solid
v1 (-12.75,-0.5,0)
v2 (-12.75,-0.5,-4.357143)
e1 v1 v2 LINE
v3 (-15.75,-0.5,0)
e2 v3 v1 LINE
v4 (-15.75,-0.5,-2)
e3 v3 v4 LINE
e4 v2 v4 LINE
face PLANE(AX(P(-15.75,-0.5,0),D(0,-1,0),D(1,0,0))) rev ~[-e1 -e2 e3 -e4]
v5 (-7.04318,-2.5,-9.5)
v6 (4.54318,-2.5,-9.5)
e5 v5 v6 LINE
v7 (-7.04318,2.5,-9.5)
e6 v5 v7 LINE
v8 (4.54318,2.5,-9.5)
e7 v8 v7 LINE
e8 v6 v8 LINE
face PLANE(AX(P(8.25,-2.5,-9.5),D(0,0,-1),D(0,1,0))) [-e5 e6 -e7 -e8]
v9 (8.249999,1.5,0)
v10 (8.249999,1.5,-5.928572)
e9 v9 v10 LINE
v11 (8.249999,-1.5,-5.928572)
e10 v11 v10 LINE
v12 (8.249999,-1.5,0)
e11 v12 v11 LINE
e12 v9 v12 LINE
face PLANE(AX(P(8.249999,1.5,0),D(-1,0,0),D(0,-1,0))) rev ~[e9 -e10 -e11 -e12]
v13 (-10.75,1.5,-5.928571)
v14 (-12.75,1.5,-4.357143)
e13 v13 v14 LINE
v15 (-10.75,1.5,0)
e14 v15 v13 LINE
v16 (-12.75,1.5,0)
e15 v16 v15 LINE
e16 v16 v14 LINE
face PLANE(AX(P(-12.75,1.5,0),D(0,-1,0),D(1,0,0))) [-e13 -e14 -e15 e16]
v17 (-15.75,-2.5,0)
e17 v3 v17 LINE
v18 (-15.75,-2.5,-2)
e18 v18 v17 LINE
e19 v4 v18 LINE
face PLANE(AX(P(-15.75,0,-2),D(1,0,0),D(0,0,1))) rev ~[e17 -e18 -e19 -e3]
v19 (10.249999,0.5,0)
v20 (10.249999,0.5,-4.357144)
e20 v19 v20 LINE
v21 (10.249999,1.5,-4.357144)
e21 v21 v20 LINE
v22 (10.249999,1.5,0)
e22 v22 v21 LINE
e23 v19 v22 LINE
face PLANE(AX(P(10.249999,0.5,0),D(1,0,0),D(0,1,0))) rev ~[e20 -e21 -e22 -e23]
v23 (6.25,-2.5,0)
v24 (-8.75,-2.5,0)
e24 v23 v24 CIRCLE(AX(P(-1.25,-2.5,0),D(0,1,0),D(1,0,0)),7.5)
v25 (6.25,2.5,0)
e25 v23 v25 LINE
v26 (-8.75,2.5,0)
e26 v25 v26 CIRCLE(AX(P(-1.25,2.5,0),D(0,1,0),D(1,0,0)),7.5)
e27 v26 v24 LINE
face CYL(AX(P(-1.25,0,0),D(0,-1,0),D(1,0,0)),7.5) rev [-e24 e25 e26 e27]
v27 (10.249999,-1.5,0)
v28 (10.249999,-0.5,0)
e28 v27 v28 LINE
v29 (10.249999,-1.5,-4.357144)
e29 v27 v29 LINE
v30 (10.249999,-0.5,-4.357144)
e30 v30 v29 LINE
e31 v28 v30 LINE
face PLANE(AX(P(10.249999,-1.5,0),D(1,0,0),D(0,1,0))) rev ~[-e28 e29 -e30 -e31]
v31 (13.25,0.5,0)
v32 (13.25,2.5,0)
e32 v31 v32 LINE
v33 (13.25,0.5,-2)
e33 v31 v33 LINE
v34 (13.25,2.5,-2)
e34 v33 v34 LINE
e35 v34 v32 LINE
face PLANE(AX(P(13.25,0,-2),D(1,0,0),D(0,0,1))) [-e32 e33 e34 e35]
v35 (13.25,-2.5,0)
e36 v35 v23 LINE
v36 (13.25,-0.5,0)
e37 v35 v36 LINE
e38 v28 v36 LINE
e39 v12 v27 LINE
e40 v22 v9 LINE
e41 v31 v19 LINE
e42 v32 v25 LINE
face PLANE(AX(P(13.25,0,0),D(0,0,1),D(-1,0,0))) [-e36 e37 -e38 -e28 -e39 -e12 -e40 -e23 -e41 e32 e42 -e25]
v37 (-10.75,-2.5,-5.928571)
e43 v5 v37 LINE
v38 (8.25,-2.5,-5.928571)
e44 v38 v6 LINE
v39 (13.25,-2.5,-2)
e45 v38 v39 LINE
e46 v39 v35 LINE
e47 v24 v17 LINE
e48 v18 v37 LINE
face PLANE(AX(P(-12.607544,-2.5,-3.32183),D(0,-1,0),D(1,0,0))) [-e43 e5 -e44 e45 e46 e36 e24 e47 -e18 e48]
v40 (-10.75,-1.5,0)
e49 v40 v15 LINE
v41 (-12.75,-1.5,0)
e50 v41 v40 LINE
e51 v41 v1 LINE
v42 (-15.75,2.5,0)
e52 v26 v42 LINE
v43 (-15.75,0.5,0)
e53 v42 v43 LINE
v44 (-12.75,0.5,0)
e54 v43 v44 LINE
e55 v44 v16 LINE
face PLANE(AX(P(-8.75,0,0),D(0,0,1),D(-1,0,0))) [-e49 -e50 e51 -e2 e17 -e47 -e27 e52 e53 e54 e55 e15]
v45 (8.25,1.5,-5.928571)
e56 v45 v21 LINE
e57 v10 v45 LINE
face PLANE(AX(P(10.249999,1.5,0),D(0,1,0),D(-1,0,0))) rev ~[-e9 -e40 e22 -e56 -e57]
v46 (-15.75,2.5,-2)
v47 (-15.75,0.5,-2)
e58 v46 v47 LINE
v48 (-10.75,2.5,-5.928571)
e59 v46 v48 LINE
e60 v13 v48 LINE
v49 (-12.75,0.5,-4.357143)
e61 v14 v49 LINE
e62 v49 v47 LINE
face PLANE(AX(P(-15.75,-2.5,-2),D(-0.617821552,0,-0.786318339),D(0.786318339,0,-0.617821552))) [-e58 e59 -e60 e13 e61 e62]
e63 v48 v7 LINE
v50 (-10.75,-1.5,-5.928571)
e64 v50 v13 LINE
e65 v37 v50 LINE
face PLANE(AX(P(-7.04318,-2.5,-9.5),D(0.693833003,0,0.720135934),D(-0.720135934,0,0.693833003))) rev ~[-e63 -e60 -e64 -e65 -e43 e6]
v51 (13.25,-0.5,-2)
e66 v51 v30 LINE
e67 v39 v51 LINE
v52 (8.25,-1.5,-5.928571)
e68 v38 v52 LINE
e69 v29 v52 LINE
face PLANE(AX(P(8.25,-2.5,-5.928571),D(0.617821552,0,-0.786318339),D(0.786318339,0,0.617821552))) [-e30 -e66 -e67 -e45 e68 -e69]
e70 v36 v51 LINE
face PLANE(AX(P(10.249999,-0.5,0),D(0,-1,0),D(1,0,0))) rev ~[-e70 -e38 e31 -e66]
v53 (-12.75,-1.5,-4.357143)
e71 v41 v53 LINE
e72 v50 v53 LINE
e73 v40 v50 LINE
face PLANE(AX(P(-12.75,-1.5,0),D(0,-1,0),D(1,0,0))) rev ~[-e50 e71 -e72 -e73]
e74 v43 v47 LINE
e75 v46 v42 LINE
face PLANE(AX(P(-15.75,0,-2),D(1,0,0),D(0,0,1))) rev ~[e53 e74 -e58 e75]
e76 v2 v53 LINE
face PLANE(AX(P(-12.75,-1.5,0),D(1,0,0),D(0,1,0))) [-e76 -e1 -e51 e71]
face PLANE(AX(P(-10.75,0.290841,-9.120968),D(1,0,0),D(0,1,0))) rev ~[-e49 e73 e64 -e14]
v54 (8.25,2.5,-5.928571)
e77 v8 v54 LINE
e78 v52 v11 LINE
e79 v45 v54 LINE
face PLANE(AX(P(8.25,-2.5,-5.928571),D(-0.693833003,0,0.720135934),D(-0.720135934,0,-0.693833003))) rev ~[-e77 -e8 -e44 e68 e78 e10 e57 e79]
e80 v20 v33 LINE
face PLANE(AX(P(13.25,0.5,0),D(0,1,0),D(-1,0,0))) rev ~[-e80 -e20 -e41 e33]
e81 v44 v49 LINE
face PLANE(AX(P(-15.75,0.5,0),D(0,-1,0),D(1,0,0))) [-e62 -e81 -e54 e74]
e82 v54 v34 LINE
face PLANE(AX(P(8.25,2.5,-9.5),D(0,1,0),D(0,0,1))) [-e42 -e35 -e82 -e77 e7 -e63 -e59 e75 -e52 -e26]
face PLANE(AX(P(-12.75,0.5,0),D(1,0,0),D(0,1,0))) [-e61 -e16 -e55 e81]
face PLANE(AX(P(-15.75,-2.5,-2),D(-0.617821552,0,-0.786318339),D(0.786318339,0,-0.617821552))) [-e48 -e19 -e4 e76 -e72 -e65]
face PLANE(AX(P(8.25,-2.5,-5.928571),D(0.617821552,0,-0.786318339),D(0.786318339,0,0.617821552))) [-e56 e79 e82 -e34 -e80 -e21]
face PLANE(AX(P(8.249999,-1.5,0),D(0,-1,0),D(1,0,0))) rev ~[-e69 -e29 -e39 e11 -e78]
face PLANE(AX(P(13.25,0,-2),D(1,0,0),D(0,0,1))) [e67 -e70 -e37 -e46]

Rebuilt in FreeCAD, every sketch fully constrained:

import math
import FreeCAD as App
import Part
import Sketcher
Q = App.Units.Quantity


def add_polygon(sketch, points):
    """Adds a closed chain of lines whose ends are joined by coincident constraints."""
    first, n = sketch.GeometryCount, len(points)
    for a, b in zip(points, points[1:] + points[:1]):
        sketch.addGeometry(Part.LineSegment(App.Vector(*a, 0), App.Vector(*b, 0)), False)
    for i in range(n):
        sketch.addConstraint(Sketcher.Constraint("Coincident", first + i, 2, first + (i + 1) % n, 1))

doc = App.newDocument("Part")
body = doc.addObject("PartDesign::Body", "Body")

# Sketch on XZ plane
sketch1 = body.newObject("Sketcher::SketchObject", "Sketch")
sketch1.AttachmentSupport = (doc.getObject("XZ_Plane"), [""])
sketch1.MapMode = "FlatFace"
sketch1.addGeometry(Part.ArcOfCircle(Part.Circle(App.Vector(-1.2, 0, 0), App.Vector(0, 0, 1), 7.5), math.radians(180), math.radians(360)), False)
sketch1.addGeometry(Part.LineSegment(App.Vector(-8.8, 0, 0), App.Vector(-15.8, 0, 0)), False)
sketch1.addGeometry(Part.LineSegment(App.Vector(-15.8, 0, 0), App.Vector(-15.8, -2, 0)), False)
sketch1.addGeometry(Part.LineSegment(App.Vector(-15.8, -2, 0), App.Vector(-10.8, -2, 0)), False)
sketch1.addGeometry(Part.LineSegment(App.Vector(-10.8, -2, 0), App.Vector(-10.8, -9.5, 0)), False)
sketch1.addGeometry(Part.LineSegment(App.Vector(-10.8, -9.5, 0), App.Vector(8.2, -9.5, 0)), False)
sketch1.addGeometry(Part.LineSegment(App.Vector(8.2, -9.5, 0), App.Vector(8.2, -2, 0)), False)
sketch1.addGeometry(Part.LineSegment(App.Vector(8.2, -2, 0), App.Vector(13.2, -2, 0)), False)
sketch1.addGeometry(Part.LineSegment(App.Vector(13.2, -2, 0), App.Vector(13.2, 0, 0)), False)
sketch1.addGeometry(Part.LineSegment(App.Vector(13.2, 0, 0), App.Vector(6.2, 0, 0)), False)
sketch1.addConstraint(Sketcher.Constraint("Coincident", 0, 1, 1, 1))
sketch1.addConstraint(Sketcher.Constraint("Coincident", 1, 2, 2, 1))
sketch1.addConstraint(Sketcher.Constraint("Coincident", 2, 2, 3, 1))
sketch1.addConstraint(Sketcher.Constraint("Coincident", 3, 2, 4, 1))
sketch1.addConstraint(Sketcher.Constraint("Coincident", 4, 2, 5, 1))
sketch1.addConstraint(Sketcher.Constraint("Coincident", 5, 2, 6, 1))
sketch1.addConstraint(Sketcher.Constraint("Coincident", 6, 2, 7, 1))
sketch1.addConstraint(Sketcher.Constraint("Coincident", 7, 2, 8, 1))
sketch1.addConstraint(Sketcher.Constraint("Coincident", 8, 2, 9, 1))
sketch1.addConstraint(Sketcher.Constraint("Coincident", 9, 2, 0, 2))
sketch1.addConstraint(Sketcher.Constraint("Horizontal", 1))
sketch1.addConstraint(Sketcher.Constraint("Vertical", 2))
sketch1.addConstraint(Sketcher.Constraint("Horizontal", 3))
sketch1.addConstraint(Sketcher.Constraint("Vertical", 4))
sketch1.addConstraint(Sketcher.Constraint("Horizontal", 5))
sketch1.addConstraint(Sketcher.Constraint("Vertical", 6))
sketch1.addConstraint(Sketcher.Constraint("Horizontal", 7))
sketch1.addConstraint(Sketcher.Constraint("Vertical", 8))
sketch1.addConstraint(Sketcher.Constraint("Horizontal", 9))
sketch1.addConstraint(Sketcher.Constraint("PointOnObject", 0, 3, -1))
sketch1.addConstraint(Sketcher.Constraint("PointOnObject", 0, 1, -1))
sketch1.addConstraint(Sketcher.Constraint("PointOnObject", 8, 2, -1))
sketch1.addConstraint(Sketcher.Constraint("Horizontal", 3, 2, 6, 2))
sketch1.addConstraint(Sketcher.Constraint("Equal", 3, 7))
sketch1.addConstraint(Sketcher.Constraint("Equal", 1, 9))
sketch1.addConstraint(Sketcher.Constraint("Radius", 0, Q("7.5 mm")))
sketch1.addConstraint(Sketcher.Constraint("DistanceX", 1, 2, 1, 1, Q("7 mm")))
sketch1.addConstraint(Sketcher.Constraint("DistanceX", 3, 1, 3, 2, Q("5 mm")))
sketch1.addConstraint(Sketcher.Constraint("DistanceY", 2, 2, 2, 1, Q("2 mm")))
sketch1.addConstraint(Sketcher.Constraint("DistanceY", 4, 2, 4, 1, Q("7.5 mm")))
sketch1.addConstraint(Sketcher.Constraint("DistanceX", 0, 3, -1, 1, Q("1.25 mm")))
pad1 = body.newObject("PartDesign::Pad", "Pad")
pad1.Profile = sketch1
pad1.Length = 5
pad1.Midplane = True

# Sketch on XZ plane
sketch2 = body.newObject("Sketcher::SketchObject", "Sketch001")
sketch2.AttachmentSupport = (doc.getObject("XZ_Plane"), [""])
sketch2.MapMode = "FlatFace"
sketch2.AttachmentOffset = App.Placement(App.Vector(0, 0, 2.5), App.Rotation())
add_polygon(sketch2, [(-10.8, -2), (-15.8, -2), (-10.8, -5.9)])  # lines 0-2
add_polygon(sketch2, [(8.2, -5.9), (13.2, -2), (8.2, -2)])  # lines 3-5
sketch2.addConstraint(Sketcher.Constraint("Horizontal", 0))
sketch2.addConstraint(Sketcher.Constraint("Vertical", 2))
sketch2.addConstraint(Sketcher.Constraint("Horizontal", 4))
sketch2.addConstraint(Sketcher.Constraint("Vertical", 5))
sketch2.addConstraint(Sketcher.Constraint("Horizontal", 2, 2, 3, 2))
sketch2.addConstraint(Sketcher.Constraint("Horizontal", 1, 2, 5, 2))
sketch2.addConstraint(Sketcher.Constraint("Equal", 0, 4))
sketch2.addConstraint(Sketcher.Constraint("DistanceX", 0, 2, 0, 1, Q("5 mm")))
sketch2.addConstraint(Sketcher.Constraint("DistanceY", 0, 2, -1, 1, Q("2 mm")))
sketch2.addConstraint(Sketcher.Constraint("DistanceX", 2, 2, 3, 2, Q("24 mm")))
sketch2.addConstraint(Sketcher.Constraint("DistanceX", 0, 2, -1, 1, Q("15.75 mm")))
sketch2.addConstraint(Sketcher.Constraint("DistanceY", 2, 1, 2, 2, Q("3.928571 mm")))
pad2 = body.newObject("PartDesign::Pad", "Pad001")
pad2.Profile = sketch2
pad2.Length = 5
pad2.Reversed = True

# Sketch on XY plane
sketch3 = body.newObject("Sketcher::SketchObject", "Sketch002")
sketch3.AttachmentSupport = (doc.getObject("XY_Plane"), [""])
sketch3.MapMode = "FlatFace"
add_polygon(sketch3, [(-15.8, 0.5), (-15.8, -0.5), (-12.8, -0.5), (-12.8, -1.5), (-10.8, -1.5), (-10.8, 1.5), (-12.8, 1.5), (-12.8, 0.5)])  # lines 0-7
add_polygon(sketch3, [(13.2, -0.5), (13.2, 0.5), (10.2, 0.5), (10.2, 1.5), (8.2, 1.5), (8.2, -1.5), (10.2, -1.5), (10.2, -0.5)])  # lines 8-15
sketch3.addConstraint(Sketcher.Constraint("Vertical", 0))
sketch3.addConstraint(Sketcher.Constraint("Horizontal", 1))
sketch3.addConstraint(Sketcher.Constraint("Vertical", 2))
sketch3.addConstraint(Sketcher.Constraint("Horizontal", 3))
sketch3.addConstraint(Sketcher.Constraint("Vertical", 4))
sketch3.addConstraint(Sketcher.Constraint("Horizontal", 5))
sketch3.addConstraint(Sketcher.Constraint("Vertical", 6))
sketch3.addConstraint(Sketcher.Constraint("Horizontal", 7))
sketch3.addConstraint(Sketcher.Constraint("Vertical", 8))
sketch3.addConstraint(Sketcher.Constraint("Horizontal", 9))
sketch3.addConstraint(Sketcher.Constraint("Vertical", 10))
sketch3.addConstraint(Sketcher.Constraint("Horizontal", 11))
sketch3.addConstraint(Sketcher.Constraint("Vertical", 12))
sketch3.addConstraint(Sketcher.Constraint("Horizontal", 13))
sketch3.addConstraint(Sketcher.Constraint("Vertical", 14))
sketch3.addConstraint(Sketcher.Constraint("Horizontal", 15))
sketch3.addConstraint(Sketcher.Constraint("Symmetric", 2, 2, 5, 2, -1))
sketch3.addConstraint(Sketcher.Constraint("Symmetric", 10, 2, 13, 2, -1))
sketch3.addConstraint(Sketcher.Constraint("Horizontal", 7, 2, 8, 2))
sketch3.addConstraint(Sketcher.Constraint("Horizontal", 5, 2, 10, 2))
sketch3.addConstraint(Sketcher.Constraint("Horizontal", 1, 2, 14, 2))
sketch3.addConstraint(Sketcher.Constraint("Equal", 7, 9))
sketch3.addConstraint(Sketcher.Constraint("Equal", 5, 11))
sketch3.addConstraint(Sketcher.Constraint("Equal", 0, 2))
sketch3.addConstraint(Sketcher.Constraint("Equal", 15, 4))
sketch3.addConstraint(Sketcher.Constraint("Equal", 2, 6))
sketch3.addConstraint(Sketcher.Constraint("DistanceX", 1, 1, 1, 2, Q("3 mm")))
sketch3.addConstraint(Sketcher.Constraint("DistanceX", 3, 1, 3, 2, Q("2 mm")))
sketch3.addConstraint(Sketcher.Constraint("DistanceX", 4, 2, 8, 2, Q("24 mm")))
sketch3.addConstraint(Sketcher.Constraint("DistanceX", 0, 2, -1, 1, Q("15.75 mm")))
pocket1 = body.newObject("PartDesign::Pocket", "Pocket")
pocket1.Profile = sketch3
pocket1.Length = 25

# Sketch on YZ plane
sketch4 = body.newObject("Sketcher::SketchObject", "Sketch003")
sketch4.AttachmentSupport = (doc.getObject("YZ_Plane"), [""])
sketch4.MapMode = "FlatFace"
sketch4.AttachmentOffset = App.Placement(App.Vector(0, 0, 8.25), App.Rotation())
add_polygon(sketch4, [(2.5, -9.5), (2.5, -8.2), (-2.5, -9.5)])  # lines 0-2
sketch4.addConstraint(Sketcher.Constraint("Vertical", 0))
sketch4.addConstraint(Sketcher.Constraint("Horizontal", 2))
sketch4.addConstraint(Sketcher.Constraint("DistanceX", 2, 1, 2, 2, Q("5 mm")))
sketch4.addConstraint(Sketcher.Constraint("Angle", 1, Q("-165 deg")))
sketch4.addConstraint(Sketcher.Constraint("DistanceX", -1, 1, 0, 2, Q("2.5 mm")))
sketch4.addConstraint(Sketcher.Constraint("DistanceY", 1, 2, -1, 1, Q("9.5 mm")))
pocket2 = body.newObject("PartDesign::Pocket", "Pocket001")
pocket2.Profile = sketch4
pocket2.Length = 25

# Sketch on YZ plane
sketch5 = body.newObject("Sketcher::SketchObject", "Sketch004")
sketch5.AttachmentSupport = (doc.getObject("YZ_Plane"), [""])
sketch5.MapMode = "FlatFace"
sketch5.AttachmentOffset = App.Placement(App.Vector(0, 0, 8.25), App.Rotation())
add_polygon(sketch5, [(2.5, -9.5), (2.5, -8.2), (-2.5, -9.5)])  # lines 0-2
sketch5.addConstraint(Sketcher.Constraint("Vertical", 0))
sketch5.addConstraint(Sketcher.Constraint("Horizontal", 2))
sketch5.addConstraint(Sketcher.Constraint("DistanceX", 2, 1, 2, 2, Q("5 mm")))
sketch5.addConstraint(Sketcher.Constraint("Angle", 1, Q("-165 deg")))
sketch5.addConstraint(Sketcher.Constraint("DistanceX", -1, 1, 0, 2, Q("2.5 mm")))
sketch5.addConstraint(Sketcher.Constraint("DistanceY", 1, 2, -1, 1, Q("9.5 mm")))
pad3 = body.newObject("PartDesign::Pad", "Pad002")
pad3.Profile = sketch5
pad3.Length = 19
pad3.Reversed = True

# Sketch on XZ plane
sketch6 = body.newObject("Sketcher::SketchObject", "Sketch005")
sketch6.AttachmentSupport = (doc.getObject("XZ_Plane"), [""])
sketch6.MapMode = "FlatFace"
sketch6.AttachmentOffset = App.Placement(App.Vector(0, 0, 2.5), App.Rotation())
add_polygon(sketch6, [(-10.8, -9.5), (-7, -9.5), (-10.8, -5.9)])  # lines 0-2
add_polygon(sketch6, [(8.2, -5.9), (4.5, -9.5), (8.2, -9.5)])  # lines 3-5
sketch6.addConstraint(Sketcher.Constraint("Horizontal", 0))
sketch6.addConstraint(Sketcher.Constraint("Vertical", 2))
sketch6.addConstraint(Sketcher.Constraint("Horizontal", 4))
sketch6.addConstraint(Sketcher.Constraint("Vertical", 5))
sketch6.addConstraint(Sketcher.Constraint("Horizontal", 2, 2, 3, 2))
sketch6.addConstraint(Sketcher.Constraint("Horizontal", 1, 2, 5, 2))
sketch6.addConstraint(Sketcher.Constraint("Equal", 0, 4))
sketch6.addConstraint(Sketcher.Constraint("DistanceX", 2, 2, 4, 2, Q("19 mm")))
sketch6.addConstraint(Sketcher.Constraint("DistanceY", 0, 2, -1, 1, Q("9.5 mm")))
sketch6.addConstraint(Sketcher.Constraint("DistanceX", 1, 2, -1, 1, Q("10.75 mm")))
sketch6.addConstraint(Sketcher.Constraint("DistanceX", 0, 1, 0, 2, Q("3.70682 mm")))
sketch6.addConstraint(Sketcher.Constraint("DistanceY", 2, 2, 2, 1, Q("3.571429 mm")))
pocket3 = body.newObject("PartDesign::Pocket", "Pocket002")
pocket3.Profile = sketch6
pocket3.Length = 25

doc.recompute()
